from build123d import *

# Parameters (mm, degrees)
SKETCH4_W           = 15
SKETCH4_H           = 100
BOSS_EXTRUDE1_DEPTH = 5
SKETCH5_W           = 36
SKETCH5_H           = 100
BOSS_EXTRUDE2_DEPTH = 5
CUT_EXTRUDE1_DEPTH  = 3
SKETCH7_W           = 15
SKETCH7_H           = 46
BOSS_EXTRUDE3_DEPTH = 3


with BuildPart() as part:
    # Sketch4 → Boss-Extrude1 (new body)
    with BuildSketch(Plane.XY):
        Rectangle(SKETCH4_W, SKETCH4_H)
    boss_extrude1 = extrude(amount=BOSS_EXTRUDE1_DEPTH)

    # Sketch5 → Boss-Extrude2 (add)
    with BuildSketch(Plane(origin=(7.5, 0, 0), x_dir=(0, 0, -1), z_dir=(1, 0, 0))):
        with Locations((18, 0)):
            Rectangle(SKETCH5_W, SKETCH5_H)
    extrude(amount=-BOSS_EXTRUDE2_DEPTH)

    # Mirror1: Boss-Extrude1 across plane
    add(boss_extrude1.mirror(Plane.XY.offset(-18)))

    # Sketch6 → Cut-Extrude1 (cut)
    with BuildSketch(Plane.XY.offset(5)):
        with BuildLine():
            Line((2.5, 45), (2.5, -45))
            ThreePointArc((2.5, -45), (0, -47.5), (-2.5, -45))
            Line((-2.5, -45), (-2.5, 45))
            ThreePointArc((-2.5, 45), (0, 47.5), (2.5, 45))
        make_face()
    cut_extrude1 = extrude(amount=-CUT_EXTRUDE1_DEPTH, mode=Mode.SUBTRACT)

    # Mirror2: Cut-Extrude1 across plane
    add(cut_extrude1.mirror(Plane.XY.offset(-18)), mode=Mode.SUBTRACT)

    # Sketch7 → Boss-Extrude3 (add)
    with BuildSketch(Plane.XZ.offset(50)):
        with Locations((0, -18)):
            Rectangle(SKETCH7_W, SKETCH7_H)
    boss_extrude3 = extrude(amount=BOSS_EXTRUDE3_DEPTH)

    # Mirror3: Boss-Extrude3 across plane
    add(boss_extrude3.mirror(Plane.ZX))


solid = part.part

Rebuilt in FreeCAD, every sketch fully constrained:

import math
import FreeCAD as App
import Part
import Sketcher
from FreeCAD import Vector

doc = App.newDocument("Part")
params = doc.addObject("Spreadsheet::Sheet", "Params")
for row, (alias, value) in enumerate([
    ("sketch1_width", "15 mm"),
    ("sketch1_height", "100 mm"),
    ("pad1_length", "5 mm"),
    ("sketch2_width", "100 mm"),
    ("sketch2_height", "36 mm"),
    ("pad2_length", "5 mm"),
    ("sketch3_radius", "2.5 mm"),
    ("sketch3_height", "90 mm"),
    ("pocket1_length", "3 mm"),
    ("sketch4_width", "15 mm"),
    ("sketch4_height", "46 mm"),
    ("pad3_length", "3 mm"),
], start=1):
    params.set(f"A{row}", alias)
    params.set(f"B{row}", "=" + value)
    params.setAlias(f"B{row}", alias)

body = doc.addObject("PartDesign::Body", "Body")

# Sketch on XY plane
sketch1 = body.newObject("Sketcher::SketchObject", "Sketch")
sketch1.AttachmentSupport = (doc.getObject("XY_Plane"), [""])
sketch1.MapMode = "FlatFace"
sketch1.addGeometry(Part.LineSegment(Vector(-7.5, 50, 0), Vector(-7.5, -50, 0)), False)
sketch1.addGeometry(Part.LineSegment(Vector(-7.5, -50, 0), Vector(7.5, -50, 0)), False)
sketch1.addGeometry(Part.LineSegment(Vector(7.5, -50, 0), Vector(7.5, 50, 0)), False)
sketch1.addGeometry(Part.LineSegment(Vector(7.5, 50, 0), Vector(-7.5, 50, 0)), False)
sketch1.addConstraint(Sketcher.Constraint("Coincident", 0, 2, 1, 1))
sketch1.addConstraint(Sketcher.Constraint("Coincident", 1, 2, 2, 1))
sketch1.addConstraint(Sketcher.Constraint("Coincident", 2, 2, 3, 1))
sketch1.addConstraint(Sketcher.Constraint("Coincident", 3, 2, 0, 1))
sketch1.addConstraint(Sketcher.Constraint("Vertical", 0))
sketch1.addConstraint(Sketcher.Constraint("Horizontal", 1))
sketch1.addConstraint(Sketcher.Constraint("Vertical", 2))
sketch1.addConstraint(Sketcher.Constraint("Horizontal", 3))
sketch1.addConstraint(Sketcher.Constraint("Symmetric", 0, 2, 2, 2, -1, 1))
sketch1.addConstraint(Sketcher.Constraint("DistanceX", 1, 1, 1, 2, 15.0))
sketch1.addConstraint(Sketcher.Constraint("DistanceY", 0, 2, 0, 1, 100.0))
sketch1.setExpression("Constraints[9]", "Params.sketch1_width")
sketch1.setExpression("Constraints[10]", "Params.sketch1_height")
pad1 = body.newObject("PartDesign::Pad", "Pad")
pad1.Profile = sketch1
pad1.setExpression("Length", "Params.pad1_length")

# Sketch on YZ plane
sketch2 = body.newObject("Sketcher::SketchObject", "Sketch001")
sketch2.AttachmentSupport = (doc.getObject("YZ_Plane"), [""])
sketch2.MapMode = "FlatFace"
sketch2.AttachmentOffset = App.Placement(Vector(0, 0, 7.5), App.Rotation())
sketch2.addGeometry(Part.LineSegment(Vector(50, 0, 0), Vector(-50, 0, 0)), False)
sketch2.addGeometry(Part.LineSegment(Vector(-50, 0, 0), Vector(-50, -36, 0)), False)
sketch2.addGeometry(Part.LineSegment(Vector(-50, -36, 0), Vector(50, -36, 0)), False)
sketch2.addGeometry(Part.LineSegment(Vector(50, -36, 0), Vector(50, 0, 0)), False)
sketch2.addConstraint(Sketcher.Constraint("Coincident", 0, 2, 1, 1))
sketch2.addConstraint(Sketcher.Constraint("Coincident", 1, 2, 2, 1))
sketch2.addConstraint(Sketcher.Constraint("Coincident", 2, 2, 3, 1))
sketch2.addConstraint(Sketcher.Constraint("Coincident", 3, 2, 0, 1))
sketch2.addConstraint(Sketcher.Constraint("Horizontal", 0))
sketch2.addConstraint(Sketcher.Constraint("Vertical", 1))
sketch2.addConstraint(Sketcher.Constraint("Horizontal", 2))
sketch2.addConstraint(Sketcher.Constraint("Vertical", 3))
sketch2.addConstraint(Sketcher.Constraint("Symmetric", 0, 2, 3, 2, -1, 1))
sketch2.addConstraint(Sketcher.Constraint("DistanceX", 0, 2, 0, 1, 100.0))
sketch2.addConstraint(Sketcher.Constraint("DistanceY", 1, 2, 1, 1, 36.0))
sketch2.setExpression("Constraints[9]", "Params.sketch2_width")
sketch2.setExpression("Constraints[10]", "Params.sketch2_height")
pad2 = body.newObject("PartDesign::Pad", "Pad001")
pad2.Profile = sketch2
pad2.setExpression("Length", "Params.pad2_length")
pad2.Reversed = True
doc.recompute()

datumplane = body.newObject("PartDesign::Plane", "DatumPlane")
datumplane.AttachmentSupport = (doc.getObject("XY_Plane"), [""])
datumplane.MapMode = "FlatFace"
datumplane.AttachmentOffset = App.Placement(Vector(0, 0, -18), App.Rotation())
mirrored = body.newObject("PartDesign::Mirrored", "Mirrored")
mirrored.Originals = [pad1]
mirrored.MirrorPlane = (datumplane, [""])
body.Tip = mirrored

# Sketch on XY plane
sketch3 = body.newObject("Sketcher::SketchObject", "Sketch002")
sketch3.AttachmentSupport = (doc.getObject("XY_Plane"), [""])
sketch3.MapMode = "FlatFace"
sketch3.AttachmentOffset = App.Placement(Vector(0, 0, 5), App.Rotation())
sketch3.addGeometry(Part.LineSegment(Vector(2.5, -45, 0), Vector(2.5, 45, 0)), False)
sketch3.addGeometry(Part.ArcOfCircle(Part.Circle(Vector(0, 45, 0), Vector(0, 0, 1), 2.5), math.radians(0), math.radians(180)), False)
sketch3.addGeometry(Part.LineSegment(Vector(-2.5, 45, 0), Vector(-2.5, -45, 0)), False)
sketch3.addGeometry(Part.ArcOfCircle(Part.Circle(Vector(0, -45, 0), Vector(0, 0, 1), 2.5), math.radians(180), math.radians(360)), False)
sketch3.addConstraint(Sketcher.Constraint("Tangent", 0, 2, 1, 1))
sketch3.addConstraint(Sketcher.Constraint("Tangent", 1, 2, 2, 1))
sketch3.addConstraint(Sketcher.Constraint("Tangent", 2, 2, 3, 1))
sketch3.addConstraint(Sketcher.Constraint("Tangent", 3, 2, 0, 1))
sketch3.addConstraint(Sketcher.Constraint("Vertical", 0))
sketch3.addConstraint(Sketcher.Constraint("Vertical", 2))
sketch3.addConstraint(Sketcher.Constraint("Symmetric", 1, 3, 3, 3, -1, 1))
sketch3.addConstraint(Sketcher.Constraint("Radius", 1, 2.5))
sketch3.addConstraint(Sketcher.Constraint("DistanceY", 0, 1, 0, 2, 90.0))
sketch3.setExpression("Constraints[7]", "Params.sketch3_radius")
sketch3.setExpression("Constraints[8]", "Params.sketch3_height")
pocket1 = body.newObject("PartDesign::Pocket", "Pocket")
pocket1.Profile = sketch3
pocket1.setExpression("Length", "Params.pocket1_length")
doc.recompute()

datumplane2 = body.newObject("PartDesign::Plane", "DatumPlane001")
datumplane2.AttachmentSupport = (doc.getObject("XY_Plane"), [""])
datumplane2.MapMode = "FlatFace"
datumplane2.AttachmentOffset = App.Placement(Vector(0, 0, -18), App.Rotation())
mirrored2 = body.newObject("PartDesign::Mirrored", "Mirrored001")
mirrored2.Originals = [pocket1]
mirrored2.MirrorPlane = (datumplane2, [""])
body.Tip = mirrored2

# Sketch on XZ plane
sketch4 = body.newObject("Sketcher::SketchObject", "Sketch003")
sketch4.AttachmentSupport = (doc.getObject("XZ_Plane"), [""])
sketch4.MapMode = "FlatFace"
sketch4.AttachmentOffset = App.Placement(Vector(0, 0, 50), App.Rotation())
sketch4.addGeometry(Part.LineSegment(Vector(-7.5, 5, 0), Vector(-7.5, -41, 0)), False)
sketch4.addGeometry(Part.LineSegment(Vector(-7.5, -41, 0), Vector(7.5, -41, 0)), False)
sketch4.addGeometry(Part.LineSegment(Vector(7.5, -41, 0), Vector(7.5, 5, 0)), False)
sketch4.addGeometry(Part.LineSegment(Vector(7.5, 5, 0), Vector(-7.5, 5, 0)), False)
sketch4.addConstraint(Sketcher.Constraint("Coincident", 0, 2, 1, 1))
sketch4.addConstraint(Sketcher.Constraint("Coincident", 1, 2, 2, 1))
sketch4.addConstraint(Sketcher.Constraint("Coincident", 2, 2, 3, 1))
sketch4.addConstraint(Sketcher.Constraint("Coincident", 3, 2, 0, 1))
sketch4.addConstraint(Sketcher.Constraint("Vertical", 0))
sketch4.addConstraint(Sketcher.Constraint("Horizontal", 1))
sketch4.addConstraint(Sketcher.Constraint("Vertical", 2))
sketch4.addConstraint(Sketcher.Constraint("Horizontal", 3))
sketch4.addConstraint(Sketcher.Constraint("DistanceX", 1, 1, 1, 2, 15.0))
sketch4.addConstraint(Sketcher.Constraint("DistanceY", 0, 2, 0, 1, 46.0))
sketch4.addConstraint(Sketcher.Constraint("DistanceY", 0, 2, -1, 1, 41.0))
sketch4.addConstraint(Sketcher.Constraint("DistanceX", 0, 2, -1, 1, 7.5))
sketch4.setExpression("Constraints[8]", "Params.sketch4_width")
sketch4.setExpression("Constraints[9]", "Params.sketch4_height")
pad3 = body.newObject("PartDesign::Pad", "Pad002")
pad3.Profile = sketch4
pad3.setExpression("Length", "Params.pad3_length")
doc.recompute()

mirrored3 = body.newObject("PartDesign::Mirrored", "Mirrored002")
mirrored3.Originals = [pad3]
mirrored3.MirrorPlane = (doc.getObject("XZ_Plane"), [""])
body.Tip = mirrored3

doc.recompute()
